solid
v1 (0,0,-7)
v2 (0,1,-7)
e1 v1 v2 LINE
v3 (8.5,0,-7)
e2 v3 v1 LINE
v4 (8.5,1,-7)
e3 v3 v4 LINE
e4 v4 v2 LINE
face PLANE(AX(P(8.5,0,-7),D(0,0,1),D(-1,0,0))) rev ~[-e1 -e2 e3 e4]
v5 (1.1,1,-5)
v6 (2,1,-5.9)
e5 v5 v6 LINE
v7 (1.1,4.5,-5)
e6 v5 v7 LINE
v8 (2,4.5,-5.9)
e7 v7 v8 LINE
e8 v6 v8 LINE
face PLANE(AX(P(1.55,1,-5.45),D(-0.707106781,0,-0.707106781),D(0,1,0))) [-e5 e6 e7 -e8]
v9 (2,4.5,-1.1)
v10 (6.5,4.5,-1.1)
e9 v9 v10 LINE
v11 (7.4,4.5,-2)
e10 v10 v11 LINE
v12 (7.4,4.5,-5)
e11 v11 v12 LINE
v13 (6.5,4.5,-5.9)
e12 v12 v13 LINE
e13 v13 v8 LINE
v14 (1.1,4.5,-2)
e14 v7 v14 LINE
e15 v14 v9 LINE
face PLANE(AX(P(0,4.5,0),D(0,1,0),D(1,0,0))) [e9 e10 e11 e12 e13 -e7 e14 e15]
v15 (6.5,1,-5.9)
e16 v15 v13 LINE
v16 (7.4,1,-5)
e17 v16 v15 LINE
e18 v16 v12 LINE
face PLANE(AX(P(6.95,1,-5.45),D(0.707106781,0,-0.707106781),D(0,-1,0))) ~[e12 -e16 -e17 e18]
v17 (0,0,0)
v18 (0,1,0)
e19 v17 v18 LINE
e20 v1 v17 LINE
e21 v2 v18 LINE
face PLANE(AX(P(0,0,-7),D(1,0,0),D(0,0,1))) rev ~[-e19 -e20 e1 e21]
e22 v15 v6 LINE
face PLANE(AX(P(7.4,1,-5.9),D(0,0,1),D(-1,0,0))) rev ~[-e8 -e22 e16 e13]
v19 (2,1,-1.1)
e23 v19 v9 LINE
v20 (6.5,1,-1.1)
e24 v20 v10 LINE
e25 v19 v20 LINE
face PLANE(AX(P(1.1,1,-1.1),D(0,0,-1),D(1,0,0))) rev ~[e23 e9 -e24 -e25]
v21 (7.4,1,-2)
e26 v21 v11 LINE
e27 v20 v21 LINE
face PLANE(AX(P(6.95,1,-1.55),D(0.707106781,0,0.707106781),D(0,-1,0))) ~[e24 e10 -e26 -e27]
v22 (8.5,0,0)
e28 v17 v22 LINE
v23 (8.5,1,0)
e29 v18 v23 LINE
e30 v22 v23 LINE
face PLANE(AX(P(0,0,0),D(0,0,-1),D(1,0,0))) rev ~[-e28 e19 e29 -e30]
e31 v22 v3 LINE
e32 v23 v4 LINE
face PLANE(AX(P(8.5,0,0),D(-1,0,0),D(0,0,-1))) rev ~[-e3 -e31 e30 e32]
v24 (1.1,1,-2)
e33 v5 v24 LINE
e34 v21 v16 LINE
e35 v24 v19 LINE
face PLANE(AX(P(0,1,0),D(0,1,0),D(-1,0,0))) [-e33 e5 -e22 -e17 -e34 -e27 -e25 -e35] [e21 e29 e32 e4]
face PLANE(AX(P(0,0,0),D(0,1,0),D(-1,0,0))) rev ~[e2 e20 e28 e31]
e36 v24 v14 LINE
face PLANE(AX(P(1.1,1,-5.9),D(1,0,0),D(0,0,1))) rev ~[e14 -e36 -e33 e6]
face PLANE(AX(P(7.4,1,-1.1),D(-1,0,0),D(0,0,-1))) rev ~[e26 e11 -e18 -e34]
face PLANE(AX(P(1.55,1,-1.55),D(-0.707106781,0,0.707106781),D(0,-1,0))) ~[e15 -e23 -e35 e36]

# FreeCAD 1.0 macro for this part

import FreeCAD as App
import Part
import Sketcher


def edges_at(feature, points):
    """Names of the edges that pass closest to the given points."""
    edges = feature.Shape.Edges
    near = lambda p: min(range(len(edges)), key=lambda i: edges[i].distToShape(Part.Vertex(*p))[0])
    return sorted({f"Edge{near(p) + 1}" for p in points})

doc = App.newDocument("Part")
body = doc.addObject("PartDesign::Body", "Body")

# Sketch on XZ plane
sketch1 = body.newObject("Sketcher::SketchObject", "Sketch")
sketch1.AttachmentSupport = (doc.getObject("XZ_Plane"), [""])
sketch1.MapMode = "FlatFace"
sketch1.addGeometry(Part.LineSegment(App.Vector(0, -7, 0), App.Vector(0, 0, 0)), False)
sketch1.addGeometry(Part.LineSegment(App.Vector(0, 0, 0), App.Vector(8, 0, 0)), False)
sketch1.addGeometry(Part.LineSegment(App.Vector(8, 0, 0), App.Vector(8, -7, 0)), False)
sketch1.addGeometry(Part.LineSegment(App.Vector(8, -7, 0), App.Vector(0, -7, 0)), False)
sketch1.addConstraint(Sketcher.Constraint("Coincident", 0, 2, 1, 1))
sketch1.addConstraint(Sketcher.Constraint("Coincident", 1, 2, 2, 1))
sketch1.addConstraint(Sketcher.Constraint("Coincident", 2, 2, 3, 1))
sketch1.addConstraint(Sketcher.Constraint("Coincident", 3, 2, 0, 1))
sketch1.addConstraint(Sketcher.Constraint("Vertical", 0))
sketch1.addConstraint(Sketcher.Constraint("Horizontal", 1))
sketch1.addConstraint(Sketcher.Constraint("Vertical", 2))
sketch1.addConstraint(Sketcher.Constraint("Horizontal", 3))
sketch1.addConstraint(Sketcher.Constraint("Coincident", 0, 2, -1, 1))
sketch1.addConstraint(Sketcher.Constraint("DistanceY", 0, 1, 0, 2, 7.0))
sketch1.addConstraint(Sketcher.Constraint("DistanceX", 1, 1, 1, 2, 8.5))
pad1 = body.newObject("PartDesign::Pad", "Pad")
pad1.Profile = sketch1
pad1.Length = 1
pad1.Reversed = True

# Sketch on XZ plane
sketch2 = body.newObject("Sketcher::SketchObject", "Sketch001")
sketch2.AttachmentSupport = (doc.getObject("XZ_Plane"), [""])
sketch2.MapMode = "FlatFace"
sketch2.AttachmentOffset = App.Placement(App.Vector(0, 0, -1), App.Rotation())
sketch2.addGeometry(Part.LineSegment(App.Vector(1.1, -5.9, 0), App.Vector(1.1, -1.1, 0)), False)
sketch2.addGeometry(Part.LineSegment(App.Vector(1.1, -1.1, 0), App.Vector(7.4, -1.1, 0)), False)
sketch2.addGeometry(Part.LineSegment(App.Vector(7.4, -1.1, 0), App.Vector(7.4, -5.9, 0)), False)
sketch2.addGeometry(Part.LineSegment(App.Vector(7.4, -5.9, 0), App.Vector(1.1, -5.9, 0)), False)
sketch2.addConstraint(Sketcher.Constraint("Coincident", 0, 2, 1, 1))
sketch2.addConstraint(Sketcher.Constraint("Coincident", 1, 2, 2, 1))
sketch2.addConstraint(Sketcher.Constraint("Coincident", 2, 2, 3, 1))
sketch2.addConstraint(Sketcher.Constraint("Coincident", 3, 2, 0, 1))
sketch2.addConstraint(Sketcher.Constraint("Vertical", 0))
sketch2.addConstraint(Sketcher.Constraint("Horizontal", 1))
sketch2.addConstraint(Sketcher.Constraint("Vertical", 2))
sketch2.addConstraint(Sketcher.Constraint("Horizontal", 3))
sketch2.addConstraint(Sketcher.Constraint("DistanceX", 1, 1, 1, 2, 6.3))
sketch2.addConstraint(Sketcher.Constraint("DistanceY", 0, 1, 0, 2, 4.8))
sketch2.addConstraint(Sketcher.Constraint("DistanceX", -1, 1, 0, 2, 1.1))
sketch2.addConstraint(Sketcher.Constraint("DistanceY", 0, 2, -1, 1, 1.1))
pad2 = body.newObject("PartDesign::Pad", "Pad001")
pad2.Profile = sketch2
pad2.Length = 3.5
pad2.Reversed = True
doc.recompute()

chamfer = body.newObject("PartDesign::Chamfer", "Chamfer")
chamfer.Base = (pad2, edges_at(pad2, [
    (1.1, 2.75, -5.9),
    (1.1, 2.75, -1.1),
    (7.4, 2.75, -1.1),
    (7.4, 2.75, -5.9),
]))
chamfer.Size = 0.9

doc.recompute()
